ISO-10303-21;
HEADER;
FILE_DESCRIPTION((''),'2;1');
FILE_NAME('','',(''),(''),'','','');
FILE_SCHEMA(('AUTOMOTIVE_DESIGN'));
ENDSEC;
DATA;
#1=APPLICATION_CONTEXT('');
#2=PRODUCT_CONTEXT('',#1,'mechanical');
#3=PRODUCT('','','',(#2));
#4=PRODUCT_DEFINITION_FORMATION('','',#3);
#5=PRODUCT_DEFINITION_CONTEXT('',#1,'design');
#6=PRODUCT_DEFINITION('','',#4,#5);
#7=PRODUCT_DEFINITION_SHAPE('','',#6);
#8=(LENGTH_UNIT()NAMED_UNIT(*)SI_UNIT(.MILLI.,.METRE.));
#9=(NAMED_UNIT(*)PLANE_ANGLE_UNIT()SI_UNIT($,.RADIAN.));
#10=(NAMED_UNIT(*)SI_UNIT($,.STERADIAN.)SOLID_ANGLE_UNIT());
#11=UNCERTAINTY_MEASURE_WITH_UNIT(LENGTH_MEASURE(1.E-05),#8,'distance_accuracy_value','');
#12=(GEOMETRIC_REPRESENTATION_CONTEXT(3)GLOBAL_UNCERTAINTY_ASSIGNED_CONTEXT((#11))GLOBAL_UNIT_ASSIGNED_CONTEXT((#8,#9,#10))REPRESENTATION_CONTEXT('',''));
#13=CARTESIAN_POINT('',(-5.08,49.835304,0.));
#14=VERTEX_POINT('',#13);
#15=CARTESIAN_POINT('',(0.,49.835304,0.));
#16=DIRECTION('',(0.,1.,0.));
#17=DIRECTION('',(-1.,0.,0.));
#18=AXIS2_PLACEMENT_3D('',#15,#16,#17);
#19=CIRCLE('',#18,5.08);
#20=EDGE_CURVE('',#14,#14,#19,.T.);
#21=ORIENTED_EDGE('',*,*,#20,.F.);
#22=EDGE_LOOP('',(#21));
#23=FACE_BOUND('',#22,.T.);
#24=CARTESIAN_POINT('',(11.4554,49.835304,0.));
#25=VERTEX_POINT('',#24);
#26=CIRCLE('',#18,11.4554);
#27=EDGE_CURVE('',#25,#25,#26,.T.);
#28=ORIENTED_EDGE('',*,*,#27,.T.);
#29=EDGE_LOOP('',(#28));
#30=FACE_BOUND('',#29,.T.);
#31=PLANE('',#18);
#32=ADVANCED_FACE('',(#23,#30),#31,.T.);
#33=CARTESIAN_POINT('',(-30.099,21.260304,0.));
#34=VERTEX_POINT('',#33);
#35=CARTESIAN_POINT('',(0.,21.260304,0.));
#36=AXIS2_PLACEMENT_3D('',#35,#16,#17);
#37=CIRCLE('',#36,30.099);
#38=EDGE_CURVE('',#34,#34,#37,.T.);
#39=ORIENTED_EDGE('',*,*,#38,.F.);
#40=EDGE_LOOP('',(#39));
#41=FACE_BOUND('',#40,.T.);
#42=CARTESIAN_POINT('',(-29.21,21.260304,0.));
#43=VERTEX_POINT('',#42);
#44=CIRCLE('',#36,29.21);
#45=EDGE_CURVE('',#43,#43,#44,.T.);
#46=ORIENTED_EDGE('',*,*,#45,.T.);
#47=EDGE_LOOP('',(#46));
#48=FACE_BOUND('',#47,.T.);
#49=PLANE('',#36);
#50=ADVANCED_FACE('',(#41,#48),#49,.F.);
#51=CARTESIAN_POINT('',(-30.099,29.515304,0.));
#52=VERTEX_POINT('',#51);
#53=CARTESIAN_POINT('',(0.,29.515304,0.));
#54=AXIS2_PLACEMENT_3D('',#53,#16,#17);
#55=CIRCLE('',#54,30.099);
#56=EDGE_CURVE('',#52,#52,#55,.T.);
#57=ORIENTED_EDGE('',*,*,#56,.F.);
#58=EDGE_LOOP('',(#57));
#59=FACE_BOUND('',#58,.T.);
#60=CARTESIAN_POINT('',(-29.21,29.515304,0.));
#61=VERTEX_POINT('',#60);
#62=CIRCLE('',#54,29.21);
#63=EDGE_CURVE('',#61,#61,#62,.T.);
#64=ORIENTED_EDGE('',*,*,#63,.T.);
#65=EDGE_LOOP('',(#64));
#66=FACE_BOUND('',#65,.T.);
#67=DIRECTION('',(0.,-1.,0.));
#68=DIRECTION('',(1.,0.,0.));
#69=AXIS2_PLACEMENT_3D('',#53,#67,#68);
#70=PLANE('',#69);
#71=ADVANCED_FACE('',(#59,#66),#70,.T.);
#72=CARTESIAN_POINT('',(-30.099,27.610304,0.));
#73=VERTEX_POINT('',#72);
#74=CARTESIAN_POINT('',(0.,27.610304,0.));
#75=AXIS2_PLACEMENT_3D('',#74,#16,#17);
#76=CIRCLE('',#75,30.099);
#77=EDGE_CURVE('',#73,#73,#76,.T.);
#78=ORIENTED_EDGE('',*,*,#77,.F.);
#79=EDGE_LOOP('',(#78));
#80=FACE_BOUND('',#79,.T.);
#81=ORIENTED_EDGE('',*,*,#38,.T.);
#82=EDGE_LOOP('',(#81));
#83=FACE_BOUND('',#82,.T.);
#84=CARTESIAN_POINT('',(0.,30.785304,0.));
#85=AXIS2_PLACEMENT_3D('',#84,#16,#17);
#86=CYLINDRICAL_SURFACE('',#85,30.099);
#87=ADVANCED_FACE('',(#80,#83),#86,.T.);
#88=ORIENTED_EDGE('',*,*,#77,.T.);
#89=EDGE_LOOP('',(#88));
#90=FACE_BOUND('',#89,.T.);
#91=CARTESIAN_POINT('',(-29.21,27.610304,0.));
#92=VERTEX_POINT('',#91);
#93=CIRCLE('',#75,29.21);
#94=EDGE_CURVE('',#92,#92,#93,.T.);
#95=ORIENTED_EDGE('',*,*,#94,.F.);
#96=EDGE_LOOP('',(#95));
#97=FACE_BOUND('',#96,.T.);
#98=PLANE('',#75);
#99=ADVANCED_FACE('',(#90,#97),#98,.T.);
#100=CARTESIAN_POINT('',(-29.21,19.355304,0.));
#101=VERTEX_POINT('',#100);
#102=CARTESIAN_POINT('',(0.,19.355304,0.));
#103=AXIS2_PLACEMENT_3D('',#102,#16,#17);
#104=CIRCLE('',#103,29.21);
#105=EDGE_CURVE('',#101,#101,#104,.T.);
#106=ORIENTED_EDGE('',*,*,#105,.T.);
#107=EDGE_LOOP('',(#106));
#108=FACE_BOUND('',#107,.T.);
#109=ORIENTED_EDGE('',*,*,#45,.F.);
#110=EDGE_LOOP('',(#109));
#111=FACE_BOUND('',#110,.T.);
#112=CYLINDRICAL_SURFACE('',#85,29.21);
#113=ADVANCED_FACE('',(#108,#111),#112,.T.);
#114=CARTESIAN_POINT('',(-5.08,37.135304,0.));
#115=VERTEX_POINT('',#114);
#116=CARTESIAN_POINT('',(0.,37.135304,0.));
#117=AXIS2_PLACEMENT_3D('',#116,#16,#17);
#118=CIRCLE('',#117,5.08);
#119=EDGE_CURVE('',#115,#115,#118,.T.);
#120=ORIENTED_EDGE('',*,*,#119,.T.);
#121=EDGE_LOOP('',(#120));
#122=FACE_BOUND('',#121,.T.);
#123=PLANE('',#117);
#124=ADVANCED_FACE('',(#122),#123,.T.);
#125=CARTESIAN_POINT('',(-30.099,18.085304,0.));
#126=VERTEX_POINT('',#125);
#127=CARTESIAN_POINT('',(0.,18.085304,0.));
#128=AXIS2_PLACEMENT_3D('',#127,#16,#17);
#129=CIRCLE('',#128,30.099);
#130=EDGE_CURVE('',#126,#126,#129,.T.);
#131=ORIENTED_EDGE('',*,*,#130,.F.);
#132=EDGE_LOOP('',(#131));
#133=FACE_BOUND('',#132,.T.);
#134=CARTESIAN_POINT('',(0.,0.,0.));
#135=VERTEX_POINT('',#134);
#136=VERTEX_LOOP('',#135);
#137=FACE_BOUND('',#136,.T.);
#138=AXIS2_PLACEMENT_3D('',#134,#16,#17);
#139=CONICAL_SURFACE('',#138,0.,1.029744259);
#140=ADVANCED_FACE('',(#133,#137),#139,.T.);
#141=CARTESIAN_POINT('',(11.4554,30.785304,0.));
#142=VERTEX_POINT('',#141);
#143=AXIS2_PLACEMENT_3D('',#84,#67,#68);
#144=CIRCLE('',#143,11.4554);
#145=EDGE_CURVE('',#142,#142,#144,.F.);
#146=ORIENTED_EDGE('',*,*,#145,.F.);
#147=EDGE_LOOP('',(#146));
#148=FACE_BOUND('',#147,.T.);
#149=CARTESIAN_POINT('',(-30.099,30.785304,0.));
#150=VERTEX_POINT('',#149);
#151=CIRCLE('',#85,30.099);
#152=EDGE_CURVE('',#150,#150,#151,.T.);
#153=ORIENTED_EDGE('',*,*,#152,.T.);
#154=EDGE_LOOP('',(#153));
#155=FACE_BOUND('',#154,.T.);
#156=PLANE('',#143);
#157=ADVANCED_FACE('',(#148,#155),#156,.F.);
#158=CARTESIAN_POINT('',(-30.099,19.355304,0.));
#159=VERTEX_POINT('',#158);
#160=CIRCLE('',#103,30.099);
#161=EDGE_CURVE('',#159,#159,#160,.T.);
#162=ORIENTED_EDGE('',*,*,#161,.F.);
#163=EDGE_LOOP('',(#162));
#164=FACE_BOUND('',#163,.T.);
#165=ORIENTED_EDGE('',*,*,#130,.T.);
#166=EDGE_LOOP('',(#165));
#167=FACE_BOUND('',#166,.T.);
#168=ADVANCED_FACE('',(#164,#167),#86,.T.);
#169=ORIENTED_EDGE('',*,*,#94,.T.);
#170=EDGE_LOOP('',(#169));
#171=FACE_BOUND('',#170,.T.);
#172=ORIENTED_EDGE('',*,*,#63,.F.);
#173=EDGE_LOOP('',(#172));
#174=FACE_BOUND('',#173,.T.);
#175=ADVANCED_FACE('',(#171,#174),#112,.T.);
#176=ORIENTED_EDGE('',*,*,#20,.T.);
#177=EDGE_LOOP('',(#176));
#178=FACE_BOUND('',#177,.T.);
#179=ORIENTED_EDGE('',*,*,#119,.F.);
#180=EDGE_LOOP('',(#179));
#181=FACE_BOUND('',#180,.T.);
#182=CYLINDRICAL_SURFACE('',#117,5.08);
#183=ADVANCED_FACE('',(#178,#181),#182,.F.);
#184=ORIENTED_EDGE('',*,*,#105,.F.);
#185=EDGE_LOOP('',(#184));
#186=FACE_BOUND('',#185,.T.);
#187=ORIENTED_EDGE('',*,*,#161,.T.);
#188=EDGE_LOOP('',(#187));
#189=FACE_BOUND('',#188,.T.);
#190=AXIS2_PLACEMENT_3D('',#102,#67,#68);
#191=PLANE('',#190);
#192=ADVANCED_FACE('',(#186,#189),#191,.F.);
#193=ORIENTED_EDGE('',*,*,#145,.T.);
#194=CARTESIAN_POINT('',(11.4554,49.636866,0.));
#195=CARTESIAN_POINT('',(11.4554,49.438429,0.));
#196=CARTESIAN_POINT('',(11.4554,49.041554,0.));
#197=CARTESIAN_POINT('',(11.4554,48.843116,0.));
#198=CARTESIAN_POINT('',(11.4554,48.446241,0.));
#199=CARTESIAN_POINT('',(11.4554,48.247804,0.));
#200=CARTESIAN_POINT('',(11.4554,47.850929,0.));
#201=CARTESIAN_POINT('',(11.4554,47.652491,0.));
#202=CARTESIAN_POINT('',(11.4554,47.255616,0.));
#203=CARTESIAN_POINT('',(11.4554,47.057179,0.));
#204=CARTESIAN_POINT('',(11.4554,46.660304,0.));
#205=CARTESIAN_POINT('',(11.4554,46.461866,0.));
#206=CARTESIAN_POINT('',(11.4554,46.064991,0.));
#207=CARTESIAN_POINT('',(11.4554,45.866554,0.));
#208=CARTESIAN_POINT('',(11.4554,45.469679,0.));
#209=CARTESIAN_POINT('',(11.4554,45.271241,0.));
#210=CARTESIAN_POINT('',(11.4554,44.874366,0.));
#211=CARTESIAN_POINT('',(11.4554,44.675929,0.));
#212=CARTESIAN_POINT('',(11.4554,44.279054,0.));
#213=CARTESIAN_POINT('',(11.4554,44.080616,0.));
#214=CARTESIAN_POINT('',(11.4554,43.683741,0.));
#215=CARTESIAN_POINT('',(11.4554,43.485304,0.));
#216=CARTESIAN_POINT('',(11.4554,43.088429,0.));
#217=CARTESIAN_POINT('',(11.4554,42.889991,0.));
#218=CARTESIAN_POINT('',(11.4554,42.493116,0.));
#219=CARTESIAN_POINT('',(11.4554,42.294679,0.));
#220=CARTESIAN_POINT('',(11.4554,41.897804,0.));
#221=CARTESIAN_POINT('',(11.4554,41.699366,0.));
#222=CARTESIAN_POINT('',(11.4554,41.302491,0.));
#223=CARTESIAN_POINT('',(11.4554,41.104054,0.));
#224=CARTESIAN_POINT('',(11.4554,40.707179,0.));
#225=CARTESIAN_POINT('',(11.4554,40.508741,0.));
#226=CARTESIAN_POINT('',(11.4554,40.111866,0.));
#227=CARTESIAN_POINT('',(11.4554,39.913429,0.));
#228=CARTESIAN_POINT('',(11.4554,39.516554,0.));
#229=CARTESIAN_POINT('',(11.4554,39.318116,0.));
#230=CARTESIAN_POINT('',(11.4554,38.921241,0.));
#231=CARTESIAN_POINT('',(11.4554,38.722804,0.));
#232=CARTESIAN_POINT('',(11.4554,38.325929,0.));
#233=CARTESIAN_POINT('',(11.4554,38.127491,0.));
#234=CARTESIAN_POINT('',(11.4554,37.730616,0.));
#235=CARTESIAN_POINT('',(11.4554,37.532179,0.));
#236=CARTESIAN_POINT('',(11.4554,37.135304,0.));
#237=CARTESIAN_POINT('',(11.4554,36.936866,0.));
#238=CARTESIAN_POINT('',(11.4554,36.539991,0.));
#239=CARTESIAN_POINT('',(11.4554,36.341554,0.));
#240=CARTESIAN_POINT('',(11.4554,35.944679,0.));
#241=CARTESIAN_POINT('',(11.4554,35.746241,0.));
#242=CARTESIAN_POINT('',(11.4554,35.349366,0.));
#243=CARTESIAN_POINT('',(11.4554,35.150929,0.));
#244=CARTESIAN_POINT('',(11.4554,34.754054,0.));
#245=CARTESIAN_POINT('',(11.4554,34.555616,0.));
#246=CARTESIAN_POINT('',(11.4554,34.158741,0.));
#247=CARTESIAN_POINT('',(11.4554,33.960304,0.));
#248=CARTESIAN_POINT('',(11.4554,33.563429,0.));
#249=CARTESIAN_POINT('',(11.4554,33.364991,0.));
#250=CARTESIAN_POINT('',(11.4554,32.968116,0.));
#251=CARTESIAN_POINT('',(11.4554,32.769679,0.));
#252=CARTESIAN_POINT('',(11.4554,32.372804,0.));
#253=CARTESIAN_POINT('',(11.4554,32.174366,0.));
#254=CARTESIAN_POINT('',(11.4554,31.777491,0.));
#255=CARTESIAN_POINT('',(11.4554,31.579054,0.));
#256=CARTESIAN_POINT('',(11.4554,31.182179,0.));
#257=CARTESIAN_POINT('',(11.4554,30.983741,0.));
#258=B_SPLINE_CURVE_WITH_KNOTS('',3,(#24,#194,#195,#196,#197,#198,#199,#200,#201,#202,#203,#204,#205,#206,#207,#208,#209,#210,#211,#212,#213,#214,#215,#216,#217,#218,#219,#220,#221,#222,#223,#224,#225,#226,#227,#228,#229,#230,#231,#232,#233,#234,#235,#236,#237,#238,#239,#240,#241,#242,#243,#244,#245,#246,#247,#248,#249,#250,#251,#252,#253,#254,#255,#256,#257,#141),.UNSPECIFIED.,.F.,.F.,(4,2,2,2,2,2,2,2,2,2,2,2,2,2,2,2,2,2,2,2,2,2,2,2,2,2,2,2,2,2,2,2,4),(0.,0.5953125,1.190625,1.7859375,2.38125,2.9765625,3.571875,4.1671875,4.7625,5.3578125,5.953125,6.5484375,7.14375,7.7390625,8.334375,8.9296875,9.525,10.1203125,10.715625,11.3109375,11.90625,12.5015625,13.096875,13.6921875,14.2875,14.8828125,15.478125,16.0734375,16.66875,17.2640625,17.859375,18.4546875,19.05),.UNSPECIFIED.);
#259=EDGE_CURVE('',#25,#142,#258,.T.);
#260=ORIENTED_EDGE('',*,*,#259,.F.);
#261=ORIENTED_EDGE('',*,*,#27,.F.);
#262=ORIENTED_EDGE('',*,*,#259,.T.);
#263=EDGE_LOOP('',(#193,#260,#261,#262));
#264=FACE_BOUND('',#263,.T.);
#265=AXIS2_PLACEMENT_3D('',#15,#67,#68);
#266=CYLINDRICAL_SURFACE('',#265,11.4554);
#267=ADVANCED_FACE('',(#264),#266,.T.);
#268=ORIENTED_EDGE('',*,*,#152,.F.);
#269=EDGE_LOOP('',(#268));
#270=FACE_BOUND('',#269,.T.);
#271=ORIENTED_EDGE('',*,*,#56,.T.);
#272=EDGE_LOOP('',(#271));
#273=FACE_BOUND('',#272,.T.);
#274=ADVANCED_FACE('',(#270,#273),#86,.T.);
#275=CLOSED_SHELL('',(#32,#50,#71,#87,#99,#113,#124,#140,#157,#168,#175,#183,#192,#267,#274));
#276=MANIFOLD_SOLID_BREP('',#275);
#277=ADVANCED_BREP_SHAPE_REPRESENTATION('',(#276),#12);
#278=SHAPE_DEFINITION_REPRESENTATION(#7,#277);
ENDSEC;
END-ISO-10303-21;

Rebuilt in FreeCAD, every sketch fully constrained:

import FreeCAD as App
import Part
import Sketcher
from FreeCAD import Vector
Q = App.Units.Quantity

doc = App.newDocument("Part")
body = doc.addObject("PartDesign::Body", "Body")

sketch1 = doc.addObject("Sketcher::SketchObject", "Sketch")
body.addObject(sketch1)
sketch1.AttachmentSupport = (doc.XY_Plane, [""])
sketch1.MapMode = "FlatFace"
sketch1.addGeometry(Part.LineSegment(Vector(0, 0, 0), Vector(30.1, 18.1, 0)), False)
sketch1.addGeometry(Part.LineSegment(Vector(30.1, 18.1, 0), Vector(30.1, 19.4, 0)), False)
sketch1.addGeometry(Part.LineSegment(Vector(30.1, 19.4, 0), Vector(29.2, 19.4, 0)), False)
sketch1.addGeometry(Part.LineSegment(Vector(29.2, 19.4, 0), Vector(29.2, 21.3, 0)), False)
sketch1.addGeometry(Part.LineSegment(Vector(29.2, 21.3, 0), Vector(30.1, 21.3, 0)), False)
sketch1.addGeometry(Part.LineSegment(Vector(30.1, 21.3, 0), Vector(30.1, 27.6, 0)), False)
sketch1.addGeometry(Part.LineSegment(Vector(30.1, 27.6, 0), Vector(29.2, 27.6, 0)), False)
sketch1.addGeometry(Part.LineSegment(Vector(29.2, 27.6, 0), Vector(29.2, 29.5, 0)), False)
sketch1.addGeometry(Part.LineSegment(Vector(29.2, 29.5, 0), Vector(30.1, 29.5, 0)), False)
sketch1.addGeometry(Part.LineSegment(Vector(30.1, 29.5, 0), Vector(30.1, 30.8, 0)), False)
sketch1.addGeometry(Part.LineSegment(Vector(30.1, 30.8, 0), Vector(0, 30.8, 0)), False)
sketch1.addGeometry(Part.LineSegment(Vector(0, 30.8, 0), Vector(0, 0, 0)), False)
sketch1.addConstraint(Sketcher.Constraint("Coincident", 0, 2, 1, 1))
sketch1.addConstraint(Sketcher.Constraint("Coincident", 1, 2, 2, 1))
sketch1.addConstraint(Sketcher.Constraint("Coincident", 2, 2, 3, 1))
sketch1.addConstraint(Sketcher.Constraint("Coincident", 3, 2, 4, 1))
sketch1.addConstraint(Sketcher.Constraint("Coincident", 4, 2, 5, 1))
sketch1.addConstraint(Sketcher.Constraint("Coincident", 5, 2, 6, 1))
sketch1.addConstraint(Sketcher.Constraint("Coincident", 6, 2, 7, 1))
sketch1.addConstraint(Sketcher.Constraint("Coincident", 7, 2, 8, 1))
sketch1.addConstraint(Sketcher.Constraint("Coincident", 8, 2, 9, 1))
sketch1.addConstraint(Sketcher.Constraint("Coincident", 9, 2, 10, 1))
sketch1.addConstraint(Sketcher.Constraint("Coincident", 10, 2, 11, 1))
sketch1.addConstraint(Sketcher.Constraint("Coincident", 11, 2, 0, 1))
sketch1.addConstraint(Sketcher.Constraint("Vertical", 1))
sketch1.addConstraint(Sketcher.Constraint("Horizontal", 2))
sketch1.addConstraint(Sketcher.Constraint("Vertical", 3))
sketch1.addConstraint(Sketcher.Constraint("Horizontal", 4))
sketch1.addConstraint(Sketcher.Constraint("Vertical", 5))
sketch1.addConstraint(Sketcher.Constraint("Horizontal", 6))
sketch1.addConstraint(Sketcher.Constraint("Vertical", 7))
sketch1.addConstraint(Sketcher.Constraint("Horizontal", 8))
sketch1.addConstraint(Sketcher.Constraint("Vertical", 9))
sketch1.addConstraint(Sketcher.Constraint("Horizontal", 10))
sketch1.addConstraint(Sketcher.Constraint("Vertical", 11))
sketch1.addConstraint(Sketcher.Constraint("Coincident", 11, 2, -1, 1))
sketch1.addConstraint(Sketcher.Constraint("Vertical", 1, 2, 4, 2))
sketch1.addConstraint(Sketcher.Constraint("Vertical", 3, 2, 6, 2))
sketch1.addConstraint(Sketcher.Constraint("Vertical", 5, 2, 8, 2))
sketch1.addConstraint(Sketcher.Constraint("Equal", 3, 7))
sketch1.addConstraint(Sketcher.Constraint("Equal", 1, 9))
sketch1.addConstraint(Sketcher.Constraint("Angle", 0, Q("31 deg")))
sketch1.addConstraint(Sketcher.Constraint("DistanceY", 1, 1, 1, 2, Q("0.05 in")))
sketch1.addConstraint(Sketcher.Constraint("DistanceY", 5, 1, 5, 2, Q("0.25 in")))
sketch1.addConstraint(Sketcher.Constraint("DistanceY", 2, 2, 7, 2, Q("0.4 in")))
sketch1.addConstraint(Sketcher.Constraint("DistanceX", 2, 2, 2, 1, Q("0.035 in")))
sketch1.addConstraint(Sketcher.Constraint("DistanceX", 10, 2, 10, 1, Q("1.185 in")))
revolution = doc.addObject("PartDesign::Revolution", "Revolution")
body.addObject(revolution)
revolution.Profile = sketch1
revolution.ReferenceAxis = (sketch1, ["V_Axis"])
revolution.Angle = 360

sketch2 = doc.addObject("Sketcher::SketchObject", "Sketch001")
body.addObject(sketch2)
sketch2.AttachmentSupport = (doc.XZ_Plane, [""])
sketch2.MapMode = "FlatFace"
sketch2.AttachmentOffset = App.Placement(Vector(0, 0, -30.785304), App.Rotation())
sketch2.addGeometry(Part.Circle(Vector(0, 0, 0), Vector(0, 0, 1), 11), False)
sketch2.addConstraint(Sketcher.Constraint("Coincident", 0, 3, -1, 1))
sketch2.addConstraint(Sketcher.Constraint("Diameter", 0, Q("0.902 in")))
pad1 = doc.addObject("PartDesign::Pad", "Pad")
body.addObject(pad1)
pad1.Profile = sketch2
pad1.Length = Q("0.75 in")
pad1.Reversed = True

sketch3 = doc.addObject("Sketcher::SketchObject", "Sketch002")
body.addObject(sketch3)
sketch3.AttachmentSupport = (doc.XZ_Plane, [""])
sketch3.MapMode = "FlatFace"
sketch3.AttachmentOffset = App.Placement(Vector(0, 0, -49.835304), App.Rotation())
sketch3.addGeometry(Part.Circle(Vector(0, 0, 0), Vector(0, 0, 1), 5), False)
sketch3.addConstraint(Sketcher.Constraint("Coincident", 0, 3, -1, 1))
sketch3.addConstraint(Sketcher.Constraint("Diameter", 0, Q("0.4 in")))
pocket1 = doc.addObject("PartDesign::Pocket", "Pocket")
body.addObject(pocket1)
pocket1.Profile = sketch3
pocket1.Length = Q("0.5 in")
pocket1.Reversed = True

doc.recompute()
